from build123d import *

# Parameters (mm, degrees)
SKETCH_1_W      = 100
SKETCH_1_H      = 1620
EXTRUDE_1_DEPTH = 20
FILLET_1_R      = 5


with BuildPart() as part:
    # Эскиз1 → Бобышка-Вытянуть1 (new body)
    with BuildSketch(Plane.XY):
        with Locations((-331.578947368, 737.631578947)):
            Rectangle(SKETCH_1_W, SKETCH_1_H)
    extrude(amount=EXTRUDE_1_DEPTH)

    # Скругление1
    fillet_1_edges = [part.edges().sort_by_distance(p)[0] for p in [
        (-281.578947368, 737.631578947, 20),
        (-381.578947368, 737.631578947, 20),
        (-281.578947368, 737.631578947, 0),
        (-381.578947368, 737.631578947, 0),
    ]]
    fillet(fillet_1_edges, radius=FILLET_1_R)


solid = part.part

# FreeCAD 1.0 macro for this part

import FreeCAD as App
import Part
import Sketcher
Q = App.Units.Quantity


def edges_at(feature, points):
    """Names of the edges that pass closest to the given points."""
    edges = feature.Shape.Edges
    near = lambda p: min(range(len(edges)), key=lambda i: edges[i].distToShape(Part.Vertex(*p))[0])
    return sorted({f"Edge{near(p) + 1}" for p in points})


def add_polygon(sketch, points):
    """Adds a closed chain of lines whose ends are joined by coincident constraints."""
    first, n = sketch.GeometryCount, len(points)
    for a, b in zip(points, points[1:] + points[:1]):
        sketch.addGeometry(Part.LineSegment(App.Vector(*a, 0), App.Vector(*b, 0)), False)
    for i in range(n):
        sketch.addConstraint(Sketcher.Constraint("Coincident", first + i, 2, first + (i + 1) % n, 1))

doc = App.newDocument("Part")
body = doc.addObject("PartDesign::Body", "Body")

sketch1 = body.newObject("Sketcher::SketchObject", "Sketch")
sketch1.AttachmentSupport = (doc.getObject("XY_Plane"), [""])
sketch1.MapMode = "FlatFace"
add_polygon(sketch1, [(-382, 1548), (-382, -72), (-282, -72), (-282, 1548)])
sketch1.addConstraint(Sketcher.Constraint("Vertical", 0))
sketch1.addConstraint(Sketcher.Constraint("Horizontal", 1))
sketch1.addConstraint(Sketcher.Constraint("Vertical", 2))
sketch1.addConstraint(Sketcher.Constraint("Horizontal", 3))
sketch1.addConstraint(Sketcher.Constraint("DistanceX", 1, 1, 1, 2, Q("100 mm")))
sketch1.addConstraint(Sketcher.Constraint("DistanceY", 0, 2, 0, 1, Q("1620 mm")))
sketch1.addConstraint(Sketcher.Constraint("DistanceY", 0, 2, -1, 1, Q("72.368421 mm")))
sketch1.addConstraint(Sketcher.Constraint("DistanceX", 0, 2, -1, 1, Q("381.578947 mm")))
pad1 = body.newObject("PartDesign::Pad", "Pad")
pad1.Profile = sketch1
pad1.Length = 20
doc.recompute()

fillet = body.newObject("PartDesign::Fillet", "Fillet")
fillet.Base = (pad1, edges_at(pad1, [
    (-281.579, 737.632, 20),
    (-381.579, 737.632, 20),
    (-281.579, 737.632, 0),
    (-381.579, 737.632, 0),
]))
fillet.Radius = 5

doc.recompute()
